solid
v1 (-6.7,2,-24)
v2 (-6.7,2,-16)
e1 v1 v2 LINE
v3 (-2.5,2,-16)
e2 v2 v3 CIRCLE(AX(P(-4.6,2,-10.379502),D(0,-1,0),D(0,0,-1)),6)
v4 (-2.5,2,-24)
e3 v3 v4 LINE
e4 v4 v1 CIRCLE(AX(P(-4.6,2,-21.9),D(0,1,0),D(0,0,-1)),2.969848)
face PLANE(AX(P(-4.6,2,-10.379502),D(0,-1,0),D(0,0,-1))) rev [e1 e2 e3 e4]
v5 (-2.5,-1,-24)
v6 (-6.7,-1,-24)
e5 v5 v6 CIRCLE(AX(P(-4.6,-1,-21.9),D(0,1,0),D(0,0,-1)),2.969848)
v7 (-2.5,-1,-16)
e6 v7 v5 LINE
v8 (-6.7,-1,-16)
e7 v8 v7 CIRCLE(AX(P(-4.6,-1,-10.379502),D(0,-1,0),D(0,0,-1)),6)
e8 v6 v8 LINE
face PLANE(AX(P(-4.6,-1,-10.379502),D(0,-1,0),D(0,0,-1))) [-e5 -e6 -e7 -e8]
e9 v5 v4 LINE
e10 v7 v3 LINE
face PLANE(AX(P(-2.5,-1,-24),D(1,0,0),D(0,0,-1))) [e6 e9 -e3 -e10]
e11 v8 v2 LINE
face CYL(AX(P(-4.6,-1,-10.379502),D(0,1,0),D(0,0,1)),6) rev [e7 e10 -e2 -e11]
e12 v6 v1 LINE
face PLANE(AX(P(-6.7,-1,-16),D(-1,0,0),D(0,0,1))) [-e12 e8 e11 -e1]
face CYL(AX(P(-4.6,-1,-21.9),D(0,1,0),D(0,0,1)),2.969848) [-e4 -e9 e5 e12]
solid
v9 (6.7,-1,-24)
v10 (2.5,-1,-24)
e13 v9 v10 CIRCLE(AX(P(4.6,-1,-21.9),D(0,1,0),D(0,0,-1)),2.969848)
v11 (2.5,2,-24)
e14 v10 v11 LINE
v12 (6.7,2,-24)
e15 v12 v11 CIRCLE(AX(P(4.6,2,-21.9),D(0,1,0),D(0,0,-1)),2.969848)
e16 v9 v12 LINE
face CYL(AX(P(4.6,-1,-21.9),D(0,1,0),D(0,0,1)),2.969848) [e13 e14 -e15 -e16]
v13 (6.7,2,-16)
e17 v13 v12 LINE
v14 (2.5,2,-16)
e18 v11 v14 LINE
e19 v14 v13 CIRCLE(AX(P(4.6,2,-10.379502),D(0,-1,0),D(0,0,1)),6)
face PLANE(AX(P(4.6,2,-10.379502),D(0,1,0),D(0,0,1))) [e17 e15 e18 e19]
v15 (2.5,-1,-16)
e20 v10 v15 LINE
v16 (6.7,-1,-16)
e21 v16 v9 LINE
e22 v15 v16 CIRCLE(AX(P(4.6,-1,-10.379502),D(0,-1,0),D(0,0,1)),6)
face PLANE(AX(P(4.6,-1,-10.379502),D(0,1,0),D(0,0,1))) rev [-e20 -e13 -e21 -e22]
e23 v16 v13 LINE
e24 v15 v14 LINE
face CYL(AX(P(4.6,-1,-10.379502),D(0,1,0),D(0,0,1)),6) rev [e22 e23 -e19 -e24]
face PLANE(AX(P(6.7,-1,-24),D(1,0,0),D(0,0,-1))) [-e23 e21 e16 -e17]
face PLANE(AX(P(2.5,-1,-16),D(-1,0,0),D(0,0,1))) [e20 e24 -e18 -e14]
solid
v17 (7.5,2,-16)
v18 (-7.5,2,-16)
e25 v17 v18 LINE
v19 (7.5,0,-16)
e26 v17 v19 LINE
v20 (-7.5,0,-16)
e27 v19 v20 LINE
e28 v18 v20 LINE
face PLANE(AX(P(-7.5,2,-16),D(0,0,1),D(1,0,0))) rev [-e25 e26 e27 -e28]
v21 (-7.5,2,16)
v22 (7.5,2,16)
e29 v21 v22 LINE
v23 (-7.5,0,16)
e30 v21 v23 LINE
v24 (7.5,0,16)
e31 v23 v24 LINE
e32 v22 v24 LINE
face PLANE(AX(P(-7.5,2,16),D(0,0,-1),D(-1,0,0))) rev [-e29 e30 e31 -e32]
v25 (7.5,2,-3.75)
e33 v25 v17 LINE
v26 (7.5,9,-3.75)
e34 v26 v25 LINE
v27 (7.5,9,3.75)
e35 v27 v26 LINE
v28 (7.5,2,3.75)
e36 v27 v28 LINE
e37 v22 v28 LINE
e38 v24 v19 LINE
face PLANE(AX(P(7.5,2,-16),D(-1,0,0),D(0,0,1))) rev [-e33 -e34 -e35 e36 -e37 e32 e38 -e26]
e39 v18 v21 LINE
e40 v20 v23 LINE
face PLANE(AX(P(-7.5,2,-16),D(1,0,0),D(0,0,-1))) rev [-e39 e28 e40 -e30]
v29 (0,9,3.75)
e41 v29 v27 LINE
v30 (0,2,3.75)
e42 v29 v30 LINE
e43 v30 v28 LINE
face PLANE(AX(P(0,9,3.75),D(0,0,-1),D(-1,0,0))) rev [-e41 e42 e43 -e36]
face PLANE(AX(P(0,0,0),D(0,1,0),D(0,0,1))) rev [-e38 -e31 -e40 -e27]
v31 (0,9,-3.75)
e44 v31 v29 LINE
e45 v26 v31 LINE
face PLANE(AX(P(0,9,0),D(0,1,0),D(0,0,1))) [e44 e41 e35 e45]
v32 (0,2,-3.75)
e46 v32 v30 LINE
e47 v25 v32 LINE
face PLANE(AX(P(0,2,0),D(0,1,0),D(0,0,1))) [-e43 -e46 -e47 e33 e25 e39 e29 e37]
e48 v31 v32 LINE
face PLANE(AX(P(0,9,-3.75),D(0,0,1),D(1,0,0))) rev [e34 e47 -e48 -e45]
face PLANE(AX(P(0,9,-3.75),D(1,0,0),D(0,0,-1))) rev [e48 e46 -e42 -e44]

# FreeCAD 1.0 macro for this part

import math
import FreeCAD as App
import Part
import Sketcher
from FreeCAD import Vector
Q = App.Units.Quantity


def add_polygon(sketch, points):
    """Adds a closed chain of lines whose ends are joined by coincident constraints."""
    first, n = sketch.GeometryCount, len(points)
    for a, b in zip(points, points[1:] + points[:1]):
        sketch.addGeometry(Part.LineSegment(App.Vector(*a, 0), App.Vector(*b, 0)), False)
    for i in range(n):
        sketch.addConstraint(Sketcher.Constraint("Coincident", first + i, 2, first + (i + 1) % n, 1))

doc = App.newDocument("Part")
params = doc.addObject("Spreadsheet::Sheet", "Params")
for row, (alias, value) in enumerate([
    ("sketch1_width", "15 mm"),
    ("sketch1_height", "32 mm"),
    ("pad1_length", "2 mm"),
    ("sketch2_width", "7.5 mm"),
    ("pad2_length", "7 mm"),
    ("sketch3_radius", "6 mm"),
    ("sketch3_height", "8 mm"),
    ("pad3_length", "3 mm"),
    ("sketch4_radius", "6 mm"),
    ("sketch4_height", "8 mm"),
    ("pad4_length", "3 mm"),
], start=1):
    params.set(f"A{row}", alias)
    params.set(f"B{row}", "=" + value)
    params.setAlias(f"B{row}", alias)

body = doc.addObject("PartDesign::Body", "Body")

sketch1 = body.newObject("Sketcher::SketchObject", "Sketch")
sketch1.AttachmentSupport = (doc.getObject("XZ_Plane"), [""])
sketch1.MapMode = "FlatFace"
add_polygon(sketch1, [(-8, -16), (-8, 16), (8, 16), (8, -16)])
sketch1.addConstraint([
    Sketcher.Constraint("Vertical", 0),
    Sketcher.Constraint("Horizontal", 1),
    Sketcher.Constraint("Vertical", 2),
    Sketcher.Constraint("Horizontal", 3),
    Sketcher.Constraint("Symmetric", 0, 2, 2, 2, -1, 1),
    Sketcher.Constraint("DistanceX", 1, 1, 1, 2, Q("15 mm")),
    Sketcher.Constraint("DistanceY", 0, 1, 0, 2, Q("32 mm")),
])
sketch1.setExpression("Constraints[9]", "Params.sketch1_width")
sketch1.setExpression("Constraints[10]", "Params.sketch1_height")
pad1 = body.newObject("PartDesign::Pad", "Pad")
pad1.Profile = sketch1
pad1.setExpression("Length", "Params.pad1_length")
pad1.Reversed = True

sketch2 = body.newObject("Sketcher::SketchObject", "Sketch001")
sketch2.AttachmentSupport = (doc.getObject("XZ_Plane"), [""])
sketch2.MapMode = "FlatFace"
sketch2.AttachmentOffset = App.Placement(Vector(0, 0, -2), App.Rotation())
add_polygon(sketch2, [(0, -4), (0, 4), (8, 4), (8, -4)])
sketch2.addConstraint([
    Sketcher.Constraint("Vertical", 0),
    Sketcher.Constraint("Horizontal", 1),
    Sketcher.Constraint("Vertical", 2),
    Sketcher.Constraint("Horizontal", 3),
    Sketcher.Constraint("Symmetric", 0, 2, 3, 2, -1, 1),
    Sketcher.Constraint("Equal", 3, 0),
    Sketcher.Constraint("DistanceX", 1, 1, 1, 2, Q("7.5 mm")),
])
sketch2.setExpression("Constraints[10]", "Params.sketch2_width")
pad2 = body.newObject("PartDesign::Pad", "Pad001")
pad2.Profile = sketch2
pad2.setExpression("Length", "Params.pad2_length")
pad2.Reversed = True
body2 = doc.addObject("PartDesign::Body", "Body001")

sketch3 = body2.newObject("Sketcher::SketchObject", "Sketch002")
sketch3.AttachmentSupport = (doc.getObject("XZ_Plane001"), [""])
sketch3.MapMode = "FlatFace"
sketch3.AttachmentOffset = App.Placement(Vector(0, 0, -2), App.Rotation())
sketch3.addGeometry([
    Part.LineSegment(Vector(-6.7, -24, 0), Vector(-6.7, -16, 0)),
    Part.ArcOfCircle(Part.Circle(Vector(-4.6, -10.4, 0), Vector(0, 0, 1), 6), math.radians(-110), math.radians(-70)),
    Part.LineSegment(Vector(-2.5, -16, 0), Vector(-2.5, -24, 0)),
    Part.ArcOfCircle(Part.Circle(Vector(-4.6, -21.9, 0), Vector(0, 0, 1), 3), math.radians(-135), math.radians(-45)),
], False)
sketch3.addConstraint([
    Sketcher.Constraint("Coincident", 0, 2, 1, 1),
    Sketcher.Constraint("Coincident", 1, 2, 2, 1),
    Sketcher.Constraint("Coincident", 2, 2, 3, 2),
    Sketcher.Constraint("Coincident", 3, 1, 0, 1),
    Sketcher.Constraint("Vertical", 0),
    Sketcher.Constraint("Vertical", 2),
    Sketcher.Constraint("Horizontal", 0, 2, 1, 2),
    Sketcher.Constraint("Horizontal", 2, 2, 3, 1),
    Sketcher.Constraint("Radius", 1, Q("6 mm")),
    Sketcher.Constraint("DistanceY", 0, 1, 0, 2, Q("8 mm")),
    Sketcher.Constraint("DistanceY", 0, 2, -1, 1, Q("16 mm")),
    Sketcher.Constraint("DistanceX", 1, 3, -1, 1, Q("4.6 mm")),
    Sketcher.Constraint("DistanceY", 3, 3, -1, 1, Q("21.9 mm")),
    Sketcher.Constraint("DistanceX", 0, 2, -1, 1, Q("6.7 mm")),
])
sketch3.setExpression("Constraints[8]", "Params.sketch3_radius")
sketch3.setExpression("Constraints[9]", "Params.sketch3_height")
pad3 = body2.newObject("PartDesign::Pad", "Pad002")
pad3.Profile = sketch3
pad3.setExpression("Length", "Params.pad3_length")
body3 = doc.addObject("PartDesign::Body", "Body002")

sketch4 = body3.newObject("Sketcher::SketchObject", "Sketch003")
sketch4.AttachmentSupport = (doc.getObject("XZ_Plane002"), [""])
sketch4.MapMode = "FlatFace"
sketch4.AttachmentOffset = App.Placement(Vector(0, 0, -2), App.Rotation())
sketch4.addGeometry([
    Part.LineSegment(Vector(2.5, -24, 0), Vector(2.5, -16, 0)),
    Part.ArcOfCircle(Part.Circle(Vector(4.6, -10.4, 0), Vector(0, 0, 1), 6), math.radians(-110), math.radians(-70)),
    Part.LineSegment(Vector(6.7, -16, 0), Vector(6.7, -24, 0)),
    Part.ArcOfCircle(Part.Circle(Vector(4.6, -21.9, 0), Vector(0, 0, 1), 3), math.radians(-135), math.radians(-45)),
], False)
sketch4.addConstraint([
    Sketcher.Constraint("Coincident", 0, 2, 1, 1),
    Sketcher.Constraint("Coincident", 1, 2, 2, 1),
    Sketcher.Constraint("Coincident", 2, 2, 3, 2),
    Sketcher.Constraint("Coincident", 3, 1, 0, 1),
    Sketcher.Constraint("Vertical", 0),
    Sketcher.Constraint("Vertical", 2),
    Sketcher.Constraint("Horizontal", 0, 2, 1, 2),
    Sketcher.Constraint("Horizontal", 2, 2, 3, 1),
    Sketcher.Constraint("Radius", 1, Q("6 mm")),
    Sketcher.Constraint("DistanceY", 0, 1, 0, 2, Q("8 mm")),
    Sketcher.Constraint("DistanceY", 0, 2, -1, 1, Q("16 mm")),
    Sketcher.Constraint("DistanceX", -1, 1, 1, 3, Q("4.6 mm")),
    Sketcher.Constraint("DistanceY", 3, 3, -1, 1, Q("21.9 mm")),
    Sketcher.Constraint("DistanceX", -1, 1, 0, 2, Q("2.5 mm")),
])
sketch4.setExpression("Constraints[8]", "Params.sketch4_radius")
sketch4.setExpression("Constraints[9]", "Params.sketch4_height")
pad4 = body3.newObject("PartDesign::Pad", "Pad003")
pad4.Profile = sketch4
pad4.setExpression("Length", "Params.pad4_length")

doc.recompute()
